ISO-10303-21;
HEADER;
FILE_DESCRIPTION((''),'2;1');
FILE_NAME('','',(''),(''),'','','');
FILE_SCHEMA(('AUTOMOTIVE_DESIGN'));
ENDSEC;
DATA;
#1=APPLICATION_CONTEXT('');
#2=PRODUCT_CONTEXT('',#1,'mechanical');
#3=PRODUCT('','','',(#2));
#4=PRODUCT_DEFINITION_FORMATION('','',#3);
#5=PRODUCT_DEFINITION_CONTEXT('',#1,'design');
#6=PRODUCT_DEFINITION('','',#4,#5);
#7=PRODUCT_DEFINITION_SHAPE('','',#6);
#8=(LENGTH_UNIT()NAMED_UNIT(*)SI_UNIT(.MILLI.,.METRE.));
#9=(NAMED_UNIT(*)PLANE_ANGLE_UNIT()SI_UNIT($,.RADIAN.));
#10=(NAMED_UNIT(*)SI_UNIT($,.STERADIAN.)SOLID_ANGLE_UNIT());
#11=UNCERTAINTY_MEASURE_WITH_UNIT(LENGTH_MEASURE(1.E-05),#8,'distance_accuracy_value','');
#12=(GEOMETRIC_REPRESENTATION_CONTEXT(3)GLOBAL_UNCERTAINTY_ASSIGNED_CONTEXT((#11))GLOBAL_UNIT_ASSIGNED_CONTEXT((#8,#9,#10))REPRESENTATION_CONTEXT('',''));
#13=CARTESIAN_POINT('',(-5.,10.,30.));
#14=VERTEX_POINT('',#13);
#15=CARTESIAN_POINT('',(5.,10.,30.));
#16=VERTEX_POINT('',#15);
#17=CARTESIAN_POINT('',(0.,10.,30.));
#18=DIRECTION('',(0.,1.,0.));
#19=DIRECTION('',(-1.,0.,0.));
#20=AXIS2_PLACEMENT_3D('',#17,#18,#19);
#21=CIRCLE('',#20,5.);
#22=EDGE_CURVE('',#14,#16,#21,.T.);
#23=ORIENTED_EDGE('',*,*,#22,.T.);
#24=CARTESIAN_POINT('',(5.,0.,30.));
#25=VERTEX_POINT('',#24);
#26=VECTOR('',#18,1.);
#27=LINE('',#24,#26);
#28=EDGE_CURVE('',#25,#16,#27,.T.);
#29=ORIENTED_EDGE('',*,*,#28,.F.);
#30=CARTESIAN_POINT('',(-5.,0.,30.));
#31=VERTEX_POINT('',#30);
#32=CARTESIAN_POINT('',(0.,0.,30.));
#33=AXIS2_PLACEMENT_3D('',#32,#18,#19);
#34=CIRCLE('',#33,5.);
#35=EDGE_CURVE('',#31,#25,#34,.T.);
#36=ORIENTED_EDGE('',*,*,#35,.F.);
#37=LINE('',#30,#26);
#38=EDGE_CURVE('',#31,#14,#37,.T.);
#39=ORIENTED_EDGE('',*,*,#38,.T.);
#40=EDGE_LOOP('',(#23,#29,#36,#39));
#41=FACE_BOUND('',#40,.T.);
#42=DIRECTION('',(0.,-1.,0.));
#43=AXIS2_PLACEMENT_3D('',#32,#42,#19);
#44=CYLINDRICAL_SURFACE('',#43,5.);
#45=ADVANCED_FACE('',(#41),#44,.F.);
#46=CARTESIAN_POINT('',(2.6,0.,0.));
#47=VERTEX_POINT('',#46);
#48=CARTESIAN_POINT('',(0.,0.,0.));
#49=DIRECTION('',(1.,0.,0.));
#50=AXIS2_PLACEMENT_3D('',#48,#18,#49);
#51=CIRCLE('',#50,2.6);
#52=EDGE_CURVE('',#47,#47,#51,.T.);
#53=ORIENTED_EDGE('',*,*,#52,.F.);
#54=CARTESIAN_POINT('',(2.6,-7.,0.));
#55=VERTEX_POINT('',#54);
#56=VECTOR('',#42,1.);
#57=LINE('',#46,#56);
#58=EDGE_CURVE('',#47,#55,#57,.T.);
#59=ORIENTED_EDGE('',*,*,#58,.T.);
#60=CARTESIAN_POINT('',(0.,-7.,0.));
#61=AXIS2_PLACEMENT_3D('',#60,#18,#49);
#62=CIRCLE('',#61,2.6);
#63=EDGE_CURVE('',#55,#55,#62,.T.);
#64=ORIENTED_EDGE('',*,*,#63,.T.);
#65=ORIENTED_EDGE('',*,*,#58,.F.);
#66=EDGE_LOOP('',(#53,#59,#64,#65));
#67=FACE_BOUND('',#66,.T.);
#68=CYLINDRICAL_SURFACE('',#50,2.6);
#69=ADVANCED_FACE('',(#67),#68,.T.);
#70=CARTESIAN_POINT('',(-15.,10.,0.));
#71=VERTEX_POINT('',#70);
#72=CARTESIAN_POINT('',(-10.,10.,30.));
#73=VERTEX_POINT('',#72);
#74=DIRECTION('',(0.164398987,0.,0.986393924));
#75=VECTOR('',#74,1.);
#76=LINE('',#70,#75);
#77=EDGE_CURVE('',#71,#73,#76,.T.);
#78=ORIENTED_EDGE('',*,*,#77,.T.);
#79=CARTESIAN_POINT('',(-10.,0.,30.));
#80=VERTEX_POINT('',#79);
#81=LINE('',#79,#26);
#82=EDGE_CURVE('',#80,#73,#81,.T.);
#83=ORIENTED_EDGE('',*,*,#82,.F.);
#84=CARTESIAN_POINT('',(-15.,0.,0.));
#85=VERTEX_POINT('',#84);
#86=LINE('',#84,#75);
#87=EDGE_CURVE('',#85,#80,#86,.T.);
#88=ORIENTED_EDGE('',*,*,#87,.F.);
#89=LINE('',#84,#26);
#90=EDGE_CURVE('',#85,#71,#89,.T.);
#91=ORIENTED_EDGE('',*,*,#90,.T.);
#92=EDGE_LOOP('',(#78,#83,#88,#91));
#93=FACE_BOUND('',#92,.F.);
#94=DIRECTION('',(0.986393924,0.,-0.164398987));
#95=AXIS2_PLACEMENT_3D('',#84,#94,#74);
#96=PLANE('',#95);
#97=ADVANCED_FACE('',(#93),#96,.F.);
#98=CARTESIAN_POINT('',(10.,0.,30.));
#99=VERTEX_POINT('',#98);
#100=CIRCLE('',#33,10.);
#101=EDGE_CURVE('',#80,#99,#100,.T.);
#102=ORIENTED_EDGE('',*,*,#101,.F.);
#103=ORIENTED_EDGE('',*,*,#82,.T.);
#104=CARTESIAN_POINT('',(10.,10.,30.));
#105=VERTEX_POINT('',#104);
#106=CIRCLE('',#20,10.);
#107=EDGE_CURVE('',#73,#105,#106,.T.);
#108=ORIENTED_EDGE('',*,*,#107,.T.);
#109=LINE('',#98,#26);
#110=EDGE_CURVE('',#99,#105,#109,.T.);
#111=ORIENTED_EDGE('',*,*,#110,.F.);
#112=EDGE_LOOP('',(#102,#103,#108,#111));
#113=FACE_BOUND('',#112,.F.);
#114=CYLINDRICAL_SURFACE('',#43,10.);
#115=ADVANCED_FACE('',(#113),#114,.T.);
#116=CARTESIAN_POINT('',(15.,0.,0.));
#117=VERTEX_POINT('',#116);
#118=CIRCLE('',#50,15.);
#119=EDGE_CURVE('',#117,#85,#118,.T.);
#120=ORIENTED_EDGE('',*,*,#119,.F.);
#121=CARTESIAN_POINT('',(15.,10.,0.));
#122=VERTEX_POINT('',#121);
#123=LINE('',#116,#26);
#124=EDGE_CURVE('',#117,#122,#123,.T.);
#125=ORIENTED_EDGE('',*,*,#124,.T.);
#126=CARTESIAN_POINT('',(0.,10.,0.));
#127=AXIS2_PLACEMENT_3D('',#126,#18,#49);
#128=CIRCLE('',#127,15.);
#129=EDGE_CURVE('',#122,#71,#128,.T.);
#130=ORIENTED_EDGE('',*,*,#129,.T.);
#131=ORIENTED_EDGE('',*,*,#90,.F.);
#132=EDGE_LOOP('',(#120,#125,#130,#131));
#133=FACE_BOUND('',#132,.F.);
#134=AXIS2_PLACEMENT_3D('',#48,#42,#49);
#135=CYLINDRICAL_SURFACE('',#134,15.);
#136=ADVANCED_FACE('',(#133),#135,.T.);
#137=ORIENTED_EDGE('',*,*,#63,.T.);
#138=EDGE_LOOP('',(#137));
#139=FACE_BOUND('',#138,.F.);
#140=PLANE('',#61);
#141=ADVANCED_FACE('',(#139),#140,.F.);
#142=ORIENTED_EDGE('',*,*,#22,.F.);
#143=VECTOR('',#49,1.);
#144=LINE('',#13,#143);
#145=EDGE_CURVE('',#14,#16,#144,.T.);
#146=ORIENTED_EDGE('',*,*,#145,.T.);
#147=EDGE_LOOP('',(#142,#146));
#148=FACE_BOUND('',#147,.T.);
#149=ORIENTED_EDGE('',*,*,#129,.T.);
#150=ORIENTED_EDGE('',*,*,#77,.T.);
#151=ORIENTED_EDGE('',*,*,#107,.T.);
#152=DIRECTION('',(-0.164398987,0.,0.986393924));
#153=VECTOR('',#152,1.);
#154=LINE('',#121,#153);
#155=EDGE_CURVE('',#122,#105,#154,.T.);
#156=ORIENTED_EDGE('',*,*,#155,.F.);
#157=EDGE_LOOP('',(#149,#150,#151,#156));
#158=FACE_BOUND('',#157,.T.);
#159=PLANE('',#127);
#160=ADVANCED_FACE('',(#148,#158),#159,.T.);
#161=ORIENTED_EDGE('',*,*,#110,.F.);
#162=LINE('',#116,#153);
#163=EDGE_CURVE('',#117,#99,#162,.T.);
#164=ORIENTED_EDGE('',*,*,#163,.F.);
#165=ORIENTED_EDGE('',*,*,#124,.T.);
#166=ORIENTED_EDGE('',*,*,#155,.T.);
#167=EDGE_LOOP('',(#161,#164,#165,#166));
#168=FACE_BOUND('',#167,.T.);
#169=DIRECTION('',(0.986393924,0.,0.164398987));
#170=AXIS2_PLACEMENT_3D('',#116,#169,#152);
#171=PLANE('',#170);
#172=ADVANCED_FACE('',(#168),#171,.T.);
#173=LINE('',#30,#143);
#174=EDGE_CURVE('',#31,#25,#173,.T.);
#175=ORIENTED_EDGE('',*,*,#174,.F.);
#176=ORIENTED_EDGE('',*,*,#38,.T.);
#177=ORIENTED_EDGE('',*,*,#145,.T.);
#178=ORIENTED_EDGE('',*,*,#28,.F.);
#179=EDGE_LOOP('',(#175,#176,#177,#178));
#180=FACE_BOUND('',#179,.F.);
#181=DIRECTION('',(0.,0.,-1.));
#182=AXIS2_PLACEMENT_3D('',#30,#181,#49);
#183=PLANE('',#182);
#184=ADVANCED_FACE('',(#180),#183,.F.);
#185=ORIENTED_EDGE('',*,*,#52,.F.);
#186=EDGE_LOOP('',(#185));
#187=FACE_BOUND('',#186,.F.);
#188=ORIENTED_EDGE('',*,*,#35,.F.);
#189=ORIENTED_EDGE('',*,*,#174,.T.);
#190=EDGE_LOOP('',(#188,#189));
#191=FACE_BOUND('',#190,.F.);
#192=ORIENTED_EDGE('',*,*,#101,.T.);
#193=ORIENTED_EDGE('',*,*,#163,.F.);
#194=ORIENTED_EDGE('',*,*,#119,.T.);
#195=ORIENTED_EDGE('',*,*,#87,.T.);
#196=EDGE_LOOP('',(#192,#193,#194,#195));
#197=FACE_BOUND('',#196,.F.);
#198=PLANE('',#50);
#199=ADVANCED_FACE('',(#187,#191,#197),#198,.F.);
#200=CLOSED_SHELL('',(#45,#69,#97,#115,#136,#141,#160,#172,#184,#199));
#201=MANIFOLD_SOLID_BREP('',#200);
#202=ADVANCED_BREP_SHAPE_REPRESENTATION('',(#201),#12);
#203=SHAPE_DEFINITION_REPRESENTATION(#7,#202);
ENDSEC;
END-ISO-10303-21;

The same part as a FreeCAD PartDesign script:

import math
import FreeCAD as App
import Part
import Sketcher
from FreeCAD import Vector

doc = App.newDocument("Part")
body = doc.addObject("PartDesign::Body", "Body")

sketch1 = body.newObject("Sketcher::SketchObject", "Sketch")
sketch1.AttachmentSupport = (doc.getObject("XZ_Plane"), [""])
sketch1.MapMode = "FlatFace"
sketch1.addGeometry([
    Part.LineSegment(Vector(10, 30, 0), Vector(15, 0, 0)),
    Part.ArcOfCircle(Part.Circle(Vector(0, 0, 0), Vector(0, 0, 1), 15), math.radians(180), math.radians(360)),
    Part.LineSegment(Vector(-15, 0, 0), Vector(-10, 30, 0)),
    Part.ArcOfCircle(Part.Circle(Vector(0, 30, 0), Vector(0, 0, 1), 10), math.radians(0), math.radians(180)),
    Part.ArcOfCircle(Part.Circle(Vector(0, 30, 0), Vector(0, 0, 1), 5), math.radians(0), math.radians(180)),
    Part.LineSegment(Vector(-5, 30, 0), Vector(5, 30, 0)),
], False)
sketch1.addConstraint([
    Sketcher.Constraint("Coincident", 0, 2, 1, 2),
    Sketcher.Constraint("Coincident", 1, 1, 2, 1),
    Sketcher.Constraint("Coincident", 2, 2, 3, 2),
    Sketcher.Constraint("Coincident", 3, 1, 0, 1),
    Sketcher.Constraint("Coincident", 4, 1, 5, 2),
    Sketcher.Constraint("Coincident", 5, 1, 4, 2),
    Sketcher.Constraint("Horizontal", 5),
    Sketcher.Constraint("Coincident", 1, 3, -1, 1),
    Sketcher.Constraint("Coincident", 4, 3, 3, 3),
    Sketcher.Constraint("Symmetric", 2, 2, 3, 1, -2),
    Sketcher.Constraint("PointOnObject", 0, 2, -1),
    Sketcher.Constraint("PointOnObject", 1, 1, -1),
    Sketcher.Constraint("Horizontal", 4, 3, 2, 2),
    Sketcher.Constraint("Horizontal", 3, 1, 4, 1),
    Sketcher.Constraint("Radius", 1, 15.0),
    Sketcher.Constraint("DistanceY", -1, 1, 3, 3, 30.0),
    Sketcher.Constraint("Radius", 3, 10.0),
    Sketcher.Constraint("Radius", 4, 5.0),
])
pad1 = body.newObject("PartDesign::Pad", "Pad")
pad1.Profile = sketch1
pad1.Length = 10
pad1.Reversed = True

sketch2 = body.newObject("Sketcher::SketchObject", "Sketch001")
sketch2.AttachmentSupport = (doc.getObject("XZ_Plane"), [""])
sketch2.MapMode = "FlatFace"
sketch2.addGeometry(Part.Circle(Vector(0, 0, 0), Vector(0, 0, 1), 2.6), False)
sketch2.addConstraint([
    Sketcher.Constraint("Coincident", 0, 3, -1, 1),
    Sketcher.Constraint("Diameter", 0, 5.2),
])
pad2 = body.newObject("PartDesign::Pad", "Pad001")
pad2.Profile = sketch2
pad2.Length = 7

doc.recompute()
